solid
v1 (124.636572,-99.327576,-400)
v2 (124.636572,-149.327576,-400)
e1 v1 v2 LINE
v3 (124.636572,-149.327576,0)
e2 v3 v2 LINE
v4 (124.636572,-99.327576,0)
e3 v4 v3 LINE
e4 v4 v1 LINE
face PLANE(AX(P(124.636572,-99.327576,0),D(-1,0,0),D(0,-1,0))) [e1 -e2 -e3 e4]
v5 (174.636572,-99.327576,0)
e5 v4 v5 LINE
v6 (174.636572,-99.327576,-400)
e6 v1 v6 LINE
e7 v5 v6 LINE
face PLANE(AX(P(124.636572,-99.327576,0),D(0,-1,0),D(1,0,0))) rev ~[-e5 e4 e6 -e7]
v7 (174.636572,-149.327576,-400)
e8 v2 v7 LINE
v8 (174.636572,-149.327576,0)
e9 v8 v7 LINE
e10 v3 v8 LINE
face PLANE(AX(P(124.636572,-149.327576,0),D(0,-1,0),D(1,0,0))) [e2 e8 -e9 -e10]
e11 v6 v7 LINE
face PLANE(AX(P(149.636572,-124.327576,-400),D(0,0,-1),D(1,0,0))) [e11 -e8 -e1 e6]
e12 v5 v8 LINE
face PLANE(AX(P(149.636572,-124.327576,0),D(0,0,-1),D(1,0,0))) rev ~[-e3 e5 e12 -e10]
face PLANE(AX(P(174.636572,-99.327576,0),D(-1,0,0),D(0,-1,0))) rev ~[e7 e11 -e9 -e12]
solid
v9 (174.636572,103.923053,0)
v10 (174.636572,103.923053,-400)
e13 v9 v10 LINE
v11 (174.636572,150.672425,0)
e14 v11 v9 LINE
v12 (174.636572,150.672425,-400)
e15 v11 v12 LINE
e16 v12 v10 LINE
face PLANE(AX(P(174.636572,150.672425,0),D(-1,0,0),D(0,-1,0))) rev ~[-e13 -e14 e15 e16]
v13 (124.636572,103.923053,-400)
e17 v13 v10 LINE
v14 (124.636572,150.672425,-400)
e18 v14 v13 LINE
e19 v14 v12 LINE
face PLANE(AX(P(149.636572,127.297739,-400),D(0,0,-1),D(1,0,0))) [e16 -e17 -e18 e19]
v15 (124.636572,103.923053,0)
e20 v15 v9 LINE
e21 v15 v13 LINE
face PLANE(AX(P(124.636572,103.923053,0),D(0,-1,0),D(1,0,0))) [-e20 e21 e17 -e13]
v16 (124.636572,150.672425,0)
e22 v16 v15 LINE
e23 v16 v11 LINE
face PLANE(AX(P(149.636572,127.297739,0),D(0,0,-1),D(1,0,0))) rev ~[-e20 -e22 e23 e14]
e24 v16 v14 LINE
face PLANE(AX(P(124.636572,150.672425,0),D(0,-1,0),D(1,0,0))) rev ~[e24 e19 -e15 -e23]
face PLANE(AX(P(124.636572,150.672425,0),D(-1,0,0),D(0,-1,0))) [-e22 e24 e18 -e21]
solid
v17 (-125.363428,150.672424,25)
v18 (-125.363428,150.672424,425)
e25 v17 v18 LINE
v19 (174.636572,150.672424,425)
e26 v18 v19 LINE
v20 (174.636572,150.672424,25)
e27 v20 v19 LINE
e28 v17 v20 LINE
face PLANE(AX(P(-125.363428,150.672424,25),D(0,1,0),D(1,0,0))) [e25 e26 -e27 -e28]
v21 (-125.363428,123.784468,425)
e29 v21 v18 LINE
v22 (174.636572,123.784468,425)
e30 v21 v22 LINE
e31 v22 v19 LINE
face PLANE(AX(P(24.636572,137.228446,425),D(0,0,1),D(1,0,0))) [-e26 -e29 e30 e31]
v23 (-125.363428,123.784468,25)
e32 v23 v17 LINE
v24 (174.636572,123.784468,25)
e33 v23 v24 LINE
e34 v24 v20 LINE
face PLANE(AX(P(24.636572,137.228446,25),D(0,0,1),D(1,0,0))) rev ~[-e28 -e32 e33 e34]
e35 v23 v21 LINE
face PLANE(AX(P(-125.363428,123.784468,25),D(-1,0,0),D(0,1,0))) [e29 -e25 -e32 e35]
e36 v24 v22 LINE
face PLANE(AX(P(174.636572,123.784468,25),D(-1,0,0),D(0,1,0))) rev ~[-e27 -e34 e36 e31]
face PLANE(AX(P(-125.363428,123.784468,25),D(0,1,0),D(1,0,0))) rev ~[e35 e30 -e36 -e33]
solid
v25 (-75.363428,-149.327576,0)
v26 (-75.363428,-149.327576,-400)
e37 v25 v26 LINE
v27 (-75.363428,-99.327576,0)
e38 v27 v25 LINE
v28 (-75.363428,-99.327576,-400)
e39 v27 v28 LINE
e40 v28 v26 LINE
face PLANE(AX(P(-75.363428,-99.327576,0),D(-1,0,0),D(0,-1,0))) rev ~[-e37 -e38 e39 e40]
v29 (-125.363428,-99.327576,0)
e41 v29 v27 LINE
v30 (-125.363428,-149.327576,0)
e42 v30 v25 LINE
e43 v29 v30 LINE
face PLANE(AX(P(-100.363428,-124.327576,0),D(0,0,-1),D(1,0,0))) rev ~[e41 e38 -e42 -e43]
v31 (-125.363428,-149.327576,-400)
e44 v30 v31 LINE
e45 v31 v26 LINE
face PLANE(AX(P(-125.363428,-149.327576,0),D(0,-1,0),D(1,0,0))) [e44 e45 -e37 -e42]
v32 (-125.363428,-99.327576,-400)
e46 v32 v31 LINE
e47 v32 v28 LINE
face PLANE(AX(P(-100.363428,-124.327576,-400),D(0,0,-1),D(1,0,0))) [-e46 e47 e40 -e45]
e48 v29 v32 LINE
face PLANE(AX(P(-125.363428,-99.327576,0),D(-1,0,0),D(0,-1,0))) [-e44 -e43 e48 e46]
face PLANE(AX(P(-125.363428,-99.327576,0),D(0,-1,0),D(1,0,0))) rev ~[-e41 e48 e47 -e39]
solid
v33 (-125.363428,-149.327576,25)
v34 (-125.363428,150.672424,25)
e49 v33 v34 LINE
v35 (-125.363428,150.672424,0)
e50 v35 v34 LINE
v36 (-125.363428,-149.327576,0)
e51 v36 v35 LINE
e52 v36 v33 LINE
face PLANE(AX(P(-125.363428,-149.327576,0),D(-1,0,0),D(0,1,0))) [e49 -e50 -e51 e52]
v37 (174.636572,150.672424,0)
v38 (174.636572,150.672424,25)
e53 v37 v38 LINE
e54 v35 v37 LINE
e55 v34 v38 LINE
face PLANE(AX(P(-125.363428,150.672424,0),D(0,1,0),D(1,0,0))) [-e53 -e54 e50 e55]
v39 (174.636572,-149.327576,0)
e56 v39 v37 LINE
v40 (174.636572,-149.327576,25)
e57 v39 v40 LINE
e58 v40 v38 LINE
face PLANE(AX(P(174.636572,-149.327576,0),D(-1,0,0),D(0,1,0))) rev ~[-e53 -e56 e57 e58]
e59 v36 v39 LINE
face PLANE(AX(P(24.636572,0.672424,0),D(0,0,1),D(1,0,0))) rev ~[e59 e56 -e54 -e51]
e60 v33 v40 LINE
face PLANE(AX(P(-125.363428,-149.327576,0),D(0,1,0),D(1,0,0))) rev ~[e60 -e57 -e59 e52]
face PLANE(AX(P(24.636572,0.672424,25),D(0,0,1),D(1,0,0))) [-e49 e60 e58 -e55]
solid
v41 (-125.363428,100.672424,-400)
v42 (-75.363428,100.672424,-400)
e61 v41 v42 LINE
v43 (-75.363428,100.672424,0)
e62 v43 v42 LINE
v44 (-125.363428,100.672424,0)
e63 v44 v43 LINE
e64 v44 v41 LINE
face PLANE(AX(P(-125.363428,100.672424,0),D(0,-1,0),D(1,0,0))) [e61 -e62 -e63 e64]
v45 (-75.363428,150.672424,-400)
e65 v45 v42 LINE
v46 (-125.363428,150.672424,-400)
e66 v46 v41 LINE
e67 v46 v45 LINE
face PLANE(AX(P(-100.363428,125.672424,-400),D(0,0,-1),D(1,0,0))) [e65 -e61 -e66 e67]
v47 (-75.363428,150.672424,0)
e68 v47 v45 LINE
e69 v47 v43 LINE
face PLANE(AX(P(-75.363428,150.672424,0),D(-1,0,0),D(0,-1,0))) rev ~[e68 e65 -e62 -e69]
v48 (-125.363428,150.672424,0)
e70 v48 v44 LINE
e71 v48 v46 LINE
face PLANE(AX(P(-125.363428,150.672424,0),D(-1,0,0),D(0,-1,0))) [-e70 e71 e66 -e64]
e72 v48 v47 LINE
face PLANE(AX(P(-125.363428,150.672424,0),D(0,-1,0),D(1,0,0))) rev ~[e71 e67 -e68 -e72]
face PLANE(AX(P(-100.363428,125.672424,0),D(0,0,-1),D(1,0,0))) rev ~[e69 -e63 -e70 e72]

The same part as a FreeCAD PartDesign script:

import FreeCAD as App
import Part
import Sketcher


def add_polygon(sketch, points):
    """Adds a closed chain of lines whose ends are joined by coincident constraints."""
    first, n = sketch.GeometryCount, len(points)
    for a, b in zip(points, points[1:] + points[:1]):
        sketch.addGeometry(Part.LineSegment(App.Vector(*a, 0), App.Vector(*b, 0)), False)
    for i in range(n):
        sketch.addConstraint(Sketcher.Constraint("Coincident", first + i, 2, first + (i + 1) % n, 1))

doc = App.newDocument("Part")
body = doc.addObject("PartDesign::Body", "Body")

sketch1 = body.newObject("Sketcher::SketchObject", "Sketch")
sketch1.AttachmentSupport = (doc.getObject("XY_Plane"), [""])
sketch1.MapMode = "FlatFace"
add_polygon(sketch1, [(-125, 151), (-125, -149), (175, -149), (175, 151)])
sketch1.addConstraint([
    Sketcher.Constraint("Vertical", 0),
    Sketcher.Constraint("Horizontal", 1),
    Sketcher.Constraint("Vertical", 2),
    Sketcher.Constraint("Horizontal", 3),
    Sketcher.Constraint("Equal", 3, 0),
    Sketcher.Constraint("DistanceX", 1, 1, 1, 2, 300.0),
    Sketcher.Constraint("DistanceX", 0, 2, -1, 1, 125.363428),
    Sketcher.Constraint("DistanceY", 0, 2, -1, 1, 149.327576),
])
pad1 = body.newObject("PartDesign::Pad", "Pad")
pad1.Profile = sketch1
pad1.Length = 25
body2 = doc.addObject("PartDesign::Body", "Body001")
body2.AllowCompound = True

sketch2 = body2.newObject("Sketcher::SketchObject", "Sketch001")
sketch2.AttachmentSupport = (doc.getObject("XY_Plane001"), [""])
sketch2.MapMode = "FlatFace"
add_polygon(sketch2, [(125, -149), (125, -99), (175, -99), (175, -149)])
add_polygon(sketch2, [(-125, -149), (-125, -99), (-75, -99), (-75, -149)])
add_polygon(sketch2, [(-125, 101), (-125, 151), (-75, 151), (-75, 101)])
add_polygon(sketch2, [(125, 104), (125, 151), (175, 151), (175, 104)])
sketch2.addConstraint([
    Sketcher.Constraint("Vertical", 0),
    Sketcher.Constraint("Horizontal", 1),
    Sketcher.Constraint("Vertical", 2),
    Sketcher.Constraint("Horizontal", 3),
    Sketcher.Constraint("Vertical", 4),
    Sketcher.Constraint("Horizontal", 5),
    Sketcher.Constraint("Vertical", 6),
    Sketcher.Constraint("Horizontal", 7),
    Sketcher.Constraint("Vertical", 8),
    Sketcher.Constraint("Horizontal", 9),
    Sketcher.Constraint("Vertical", 10),
    Sketcher.Constraint("Horizontal", 11),
    Sketcher.Constraint("Vertical", 12),
    Sketcher.Constraint("Horizontal", 13),
    Sketcher.Constraint("Vertical", 14),
    Sketcher.Constraint("Horizontal", 15),
    Sketcher.Constraint("Horizontal", 1, 2, 4, 2),
    Sketcher.Constraint("Horizontal", 3, 2, 6, 2),
    Sketcher.Constraint("Horizontal", 9, 2, 12, 2),
    Sketcher.Constraint("Vertical", 7, 2, 8, 2),
    Sketcher.Constraint("Vertical", 6, 2, 9, 2),
    Sketcher.Constraint("Vertical", 3, 2, 12, 2),
    Sketcher.Constraint("Vertical", 2, 2, 13, 2),
    Sketcher.Constraint("Equal", 3, 5),
    Sketcher.Constraint("Equal", 15, 0),
    Sketcher.Constraint("Equal", 6, 8),
    Sketcher.Constraint("DistanceX", 1, 1, 1, 2, 50.0),
    Sketcher.Constraint("DistanceX", 4, 2, 0, 2, 250.0),
    Sketcher.Constraint("DistanceY", 4, 2, 8, 2, 250.0),
    Sketcher.Constraint("DistanceY", 12, 1, 12, 2, 46.749371),
    Sketcher.Constraint("DistanceX", -1, 1, 0, 2, 124.636572),
    Sketcher.Constraint("DistanceY", 0, 2, -1, 1, 99.327576),
])
pad2 = body2.newObject("PartDesign::Pad", "Pad001")
pad2.Profile = sketch2
pad2.Length = 400
pad2.Reversed = True
body3 = doc.addObject("PartDesign::Body", "Body002")

sketch3 = body3.newObject("Sketcher::SketchObject", "Sketch002")
sketch3.AttachmentSupport = (doc.getObject("XY_Plane002"), [""])
sketch3.MapMode = "FlatFace"
sketch3.AttachmentOffset = App.Placement(App.Vector(0, 0, 25), App.Rotation())
add_polygon(sketch3, [(-125, 151), (-125, 124), (175, 124), (175, 151)])
sketch3.addConstraint([
    Sketcher.Constraint("Vertical", 0),
    Sketcher.Constraint("Horizontal", 1),
    Sketcher.Constraint("Vertical", 2),
    Sketcher.Constraint("Horizontal", 3),
    Sketcher.Constraint("DistanceX", 1, 1, 1, 2, 300.0),
    Sketcher.Constraint("DistanceY", 0, 2, 0, 1, 26.887956),
    Sketcher.Constraint("DistanceX", 0, 2, -1, 1, 125.363428),
    Sketcher.Constraint("DistanceY", -1, 1, 0, 2, 123.784468),
])
pad3 = body3.newObject("PartDesign::Pad", "Pad002")
pad3.Profile = sketch3
pad3.Length = 400

doc.recompute()
